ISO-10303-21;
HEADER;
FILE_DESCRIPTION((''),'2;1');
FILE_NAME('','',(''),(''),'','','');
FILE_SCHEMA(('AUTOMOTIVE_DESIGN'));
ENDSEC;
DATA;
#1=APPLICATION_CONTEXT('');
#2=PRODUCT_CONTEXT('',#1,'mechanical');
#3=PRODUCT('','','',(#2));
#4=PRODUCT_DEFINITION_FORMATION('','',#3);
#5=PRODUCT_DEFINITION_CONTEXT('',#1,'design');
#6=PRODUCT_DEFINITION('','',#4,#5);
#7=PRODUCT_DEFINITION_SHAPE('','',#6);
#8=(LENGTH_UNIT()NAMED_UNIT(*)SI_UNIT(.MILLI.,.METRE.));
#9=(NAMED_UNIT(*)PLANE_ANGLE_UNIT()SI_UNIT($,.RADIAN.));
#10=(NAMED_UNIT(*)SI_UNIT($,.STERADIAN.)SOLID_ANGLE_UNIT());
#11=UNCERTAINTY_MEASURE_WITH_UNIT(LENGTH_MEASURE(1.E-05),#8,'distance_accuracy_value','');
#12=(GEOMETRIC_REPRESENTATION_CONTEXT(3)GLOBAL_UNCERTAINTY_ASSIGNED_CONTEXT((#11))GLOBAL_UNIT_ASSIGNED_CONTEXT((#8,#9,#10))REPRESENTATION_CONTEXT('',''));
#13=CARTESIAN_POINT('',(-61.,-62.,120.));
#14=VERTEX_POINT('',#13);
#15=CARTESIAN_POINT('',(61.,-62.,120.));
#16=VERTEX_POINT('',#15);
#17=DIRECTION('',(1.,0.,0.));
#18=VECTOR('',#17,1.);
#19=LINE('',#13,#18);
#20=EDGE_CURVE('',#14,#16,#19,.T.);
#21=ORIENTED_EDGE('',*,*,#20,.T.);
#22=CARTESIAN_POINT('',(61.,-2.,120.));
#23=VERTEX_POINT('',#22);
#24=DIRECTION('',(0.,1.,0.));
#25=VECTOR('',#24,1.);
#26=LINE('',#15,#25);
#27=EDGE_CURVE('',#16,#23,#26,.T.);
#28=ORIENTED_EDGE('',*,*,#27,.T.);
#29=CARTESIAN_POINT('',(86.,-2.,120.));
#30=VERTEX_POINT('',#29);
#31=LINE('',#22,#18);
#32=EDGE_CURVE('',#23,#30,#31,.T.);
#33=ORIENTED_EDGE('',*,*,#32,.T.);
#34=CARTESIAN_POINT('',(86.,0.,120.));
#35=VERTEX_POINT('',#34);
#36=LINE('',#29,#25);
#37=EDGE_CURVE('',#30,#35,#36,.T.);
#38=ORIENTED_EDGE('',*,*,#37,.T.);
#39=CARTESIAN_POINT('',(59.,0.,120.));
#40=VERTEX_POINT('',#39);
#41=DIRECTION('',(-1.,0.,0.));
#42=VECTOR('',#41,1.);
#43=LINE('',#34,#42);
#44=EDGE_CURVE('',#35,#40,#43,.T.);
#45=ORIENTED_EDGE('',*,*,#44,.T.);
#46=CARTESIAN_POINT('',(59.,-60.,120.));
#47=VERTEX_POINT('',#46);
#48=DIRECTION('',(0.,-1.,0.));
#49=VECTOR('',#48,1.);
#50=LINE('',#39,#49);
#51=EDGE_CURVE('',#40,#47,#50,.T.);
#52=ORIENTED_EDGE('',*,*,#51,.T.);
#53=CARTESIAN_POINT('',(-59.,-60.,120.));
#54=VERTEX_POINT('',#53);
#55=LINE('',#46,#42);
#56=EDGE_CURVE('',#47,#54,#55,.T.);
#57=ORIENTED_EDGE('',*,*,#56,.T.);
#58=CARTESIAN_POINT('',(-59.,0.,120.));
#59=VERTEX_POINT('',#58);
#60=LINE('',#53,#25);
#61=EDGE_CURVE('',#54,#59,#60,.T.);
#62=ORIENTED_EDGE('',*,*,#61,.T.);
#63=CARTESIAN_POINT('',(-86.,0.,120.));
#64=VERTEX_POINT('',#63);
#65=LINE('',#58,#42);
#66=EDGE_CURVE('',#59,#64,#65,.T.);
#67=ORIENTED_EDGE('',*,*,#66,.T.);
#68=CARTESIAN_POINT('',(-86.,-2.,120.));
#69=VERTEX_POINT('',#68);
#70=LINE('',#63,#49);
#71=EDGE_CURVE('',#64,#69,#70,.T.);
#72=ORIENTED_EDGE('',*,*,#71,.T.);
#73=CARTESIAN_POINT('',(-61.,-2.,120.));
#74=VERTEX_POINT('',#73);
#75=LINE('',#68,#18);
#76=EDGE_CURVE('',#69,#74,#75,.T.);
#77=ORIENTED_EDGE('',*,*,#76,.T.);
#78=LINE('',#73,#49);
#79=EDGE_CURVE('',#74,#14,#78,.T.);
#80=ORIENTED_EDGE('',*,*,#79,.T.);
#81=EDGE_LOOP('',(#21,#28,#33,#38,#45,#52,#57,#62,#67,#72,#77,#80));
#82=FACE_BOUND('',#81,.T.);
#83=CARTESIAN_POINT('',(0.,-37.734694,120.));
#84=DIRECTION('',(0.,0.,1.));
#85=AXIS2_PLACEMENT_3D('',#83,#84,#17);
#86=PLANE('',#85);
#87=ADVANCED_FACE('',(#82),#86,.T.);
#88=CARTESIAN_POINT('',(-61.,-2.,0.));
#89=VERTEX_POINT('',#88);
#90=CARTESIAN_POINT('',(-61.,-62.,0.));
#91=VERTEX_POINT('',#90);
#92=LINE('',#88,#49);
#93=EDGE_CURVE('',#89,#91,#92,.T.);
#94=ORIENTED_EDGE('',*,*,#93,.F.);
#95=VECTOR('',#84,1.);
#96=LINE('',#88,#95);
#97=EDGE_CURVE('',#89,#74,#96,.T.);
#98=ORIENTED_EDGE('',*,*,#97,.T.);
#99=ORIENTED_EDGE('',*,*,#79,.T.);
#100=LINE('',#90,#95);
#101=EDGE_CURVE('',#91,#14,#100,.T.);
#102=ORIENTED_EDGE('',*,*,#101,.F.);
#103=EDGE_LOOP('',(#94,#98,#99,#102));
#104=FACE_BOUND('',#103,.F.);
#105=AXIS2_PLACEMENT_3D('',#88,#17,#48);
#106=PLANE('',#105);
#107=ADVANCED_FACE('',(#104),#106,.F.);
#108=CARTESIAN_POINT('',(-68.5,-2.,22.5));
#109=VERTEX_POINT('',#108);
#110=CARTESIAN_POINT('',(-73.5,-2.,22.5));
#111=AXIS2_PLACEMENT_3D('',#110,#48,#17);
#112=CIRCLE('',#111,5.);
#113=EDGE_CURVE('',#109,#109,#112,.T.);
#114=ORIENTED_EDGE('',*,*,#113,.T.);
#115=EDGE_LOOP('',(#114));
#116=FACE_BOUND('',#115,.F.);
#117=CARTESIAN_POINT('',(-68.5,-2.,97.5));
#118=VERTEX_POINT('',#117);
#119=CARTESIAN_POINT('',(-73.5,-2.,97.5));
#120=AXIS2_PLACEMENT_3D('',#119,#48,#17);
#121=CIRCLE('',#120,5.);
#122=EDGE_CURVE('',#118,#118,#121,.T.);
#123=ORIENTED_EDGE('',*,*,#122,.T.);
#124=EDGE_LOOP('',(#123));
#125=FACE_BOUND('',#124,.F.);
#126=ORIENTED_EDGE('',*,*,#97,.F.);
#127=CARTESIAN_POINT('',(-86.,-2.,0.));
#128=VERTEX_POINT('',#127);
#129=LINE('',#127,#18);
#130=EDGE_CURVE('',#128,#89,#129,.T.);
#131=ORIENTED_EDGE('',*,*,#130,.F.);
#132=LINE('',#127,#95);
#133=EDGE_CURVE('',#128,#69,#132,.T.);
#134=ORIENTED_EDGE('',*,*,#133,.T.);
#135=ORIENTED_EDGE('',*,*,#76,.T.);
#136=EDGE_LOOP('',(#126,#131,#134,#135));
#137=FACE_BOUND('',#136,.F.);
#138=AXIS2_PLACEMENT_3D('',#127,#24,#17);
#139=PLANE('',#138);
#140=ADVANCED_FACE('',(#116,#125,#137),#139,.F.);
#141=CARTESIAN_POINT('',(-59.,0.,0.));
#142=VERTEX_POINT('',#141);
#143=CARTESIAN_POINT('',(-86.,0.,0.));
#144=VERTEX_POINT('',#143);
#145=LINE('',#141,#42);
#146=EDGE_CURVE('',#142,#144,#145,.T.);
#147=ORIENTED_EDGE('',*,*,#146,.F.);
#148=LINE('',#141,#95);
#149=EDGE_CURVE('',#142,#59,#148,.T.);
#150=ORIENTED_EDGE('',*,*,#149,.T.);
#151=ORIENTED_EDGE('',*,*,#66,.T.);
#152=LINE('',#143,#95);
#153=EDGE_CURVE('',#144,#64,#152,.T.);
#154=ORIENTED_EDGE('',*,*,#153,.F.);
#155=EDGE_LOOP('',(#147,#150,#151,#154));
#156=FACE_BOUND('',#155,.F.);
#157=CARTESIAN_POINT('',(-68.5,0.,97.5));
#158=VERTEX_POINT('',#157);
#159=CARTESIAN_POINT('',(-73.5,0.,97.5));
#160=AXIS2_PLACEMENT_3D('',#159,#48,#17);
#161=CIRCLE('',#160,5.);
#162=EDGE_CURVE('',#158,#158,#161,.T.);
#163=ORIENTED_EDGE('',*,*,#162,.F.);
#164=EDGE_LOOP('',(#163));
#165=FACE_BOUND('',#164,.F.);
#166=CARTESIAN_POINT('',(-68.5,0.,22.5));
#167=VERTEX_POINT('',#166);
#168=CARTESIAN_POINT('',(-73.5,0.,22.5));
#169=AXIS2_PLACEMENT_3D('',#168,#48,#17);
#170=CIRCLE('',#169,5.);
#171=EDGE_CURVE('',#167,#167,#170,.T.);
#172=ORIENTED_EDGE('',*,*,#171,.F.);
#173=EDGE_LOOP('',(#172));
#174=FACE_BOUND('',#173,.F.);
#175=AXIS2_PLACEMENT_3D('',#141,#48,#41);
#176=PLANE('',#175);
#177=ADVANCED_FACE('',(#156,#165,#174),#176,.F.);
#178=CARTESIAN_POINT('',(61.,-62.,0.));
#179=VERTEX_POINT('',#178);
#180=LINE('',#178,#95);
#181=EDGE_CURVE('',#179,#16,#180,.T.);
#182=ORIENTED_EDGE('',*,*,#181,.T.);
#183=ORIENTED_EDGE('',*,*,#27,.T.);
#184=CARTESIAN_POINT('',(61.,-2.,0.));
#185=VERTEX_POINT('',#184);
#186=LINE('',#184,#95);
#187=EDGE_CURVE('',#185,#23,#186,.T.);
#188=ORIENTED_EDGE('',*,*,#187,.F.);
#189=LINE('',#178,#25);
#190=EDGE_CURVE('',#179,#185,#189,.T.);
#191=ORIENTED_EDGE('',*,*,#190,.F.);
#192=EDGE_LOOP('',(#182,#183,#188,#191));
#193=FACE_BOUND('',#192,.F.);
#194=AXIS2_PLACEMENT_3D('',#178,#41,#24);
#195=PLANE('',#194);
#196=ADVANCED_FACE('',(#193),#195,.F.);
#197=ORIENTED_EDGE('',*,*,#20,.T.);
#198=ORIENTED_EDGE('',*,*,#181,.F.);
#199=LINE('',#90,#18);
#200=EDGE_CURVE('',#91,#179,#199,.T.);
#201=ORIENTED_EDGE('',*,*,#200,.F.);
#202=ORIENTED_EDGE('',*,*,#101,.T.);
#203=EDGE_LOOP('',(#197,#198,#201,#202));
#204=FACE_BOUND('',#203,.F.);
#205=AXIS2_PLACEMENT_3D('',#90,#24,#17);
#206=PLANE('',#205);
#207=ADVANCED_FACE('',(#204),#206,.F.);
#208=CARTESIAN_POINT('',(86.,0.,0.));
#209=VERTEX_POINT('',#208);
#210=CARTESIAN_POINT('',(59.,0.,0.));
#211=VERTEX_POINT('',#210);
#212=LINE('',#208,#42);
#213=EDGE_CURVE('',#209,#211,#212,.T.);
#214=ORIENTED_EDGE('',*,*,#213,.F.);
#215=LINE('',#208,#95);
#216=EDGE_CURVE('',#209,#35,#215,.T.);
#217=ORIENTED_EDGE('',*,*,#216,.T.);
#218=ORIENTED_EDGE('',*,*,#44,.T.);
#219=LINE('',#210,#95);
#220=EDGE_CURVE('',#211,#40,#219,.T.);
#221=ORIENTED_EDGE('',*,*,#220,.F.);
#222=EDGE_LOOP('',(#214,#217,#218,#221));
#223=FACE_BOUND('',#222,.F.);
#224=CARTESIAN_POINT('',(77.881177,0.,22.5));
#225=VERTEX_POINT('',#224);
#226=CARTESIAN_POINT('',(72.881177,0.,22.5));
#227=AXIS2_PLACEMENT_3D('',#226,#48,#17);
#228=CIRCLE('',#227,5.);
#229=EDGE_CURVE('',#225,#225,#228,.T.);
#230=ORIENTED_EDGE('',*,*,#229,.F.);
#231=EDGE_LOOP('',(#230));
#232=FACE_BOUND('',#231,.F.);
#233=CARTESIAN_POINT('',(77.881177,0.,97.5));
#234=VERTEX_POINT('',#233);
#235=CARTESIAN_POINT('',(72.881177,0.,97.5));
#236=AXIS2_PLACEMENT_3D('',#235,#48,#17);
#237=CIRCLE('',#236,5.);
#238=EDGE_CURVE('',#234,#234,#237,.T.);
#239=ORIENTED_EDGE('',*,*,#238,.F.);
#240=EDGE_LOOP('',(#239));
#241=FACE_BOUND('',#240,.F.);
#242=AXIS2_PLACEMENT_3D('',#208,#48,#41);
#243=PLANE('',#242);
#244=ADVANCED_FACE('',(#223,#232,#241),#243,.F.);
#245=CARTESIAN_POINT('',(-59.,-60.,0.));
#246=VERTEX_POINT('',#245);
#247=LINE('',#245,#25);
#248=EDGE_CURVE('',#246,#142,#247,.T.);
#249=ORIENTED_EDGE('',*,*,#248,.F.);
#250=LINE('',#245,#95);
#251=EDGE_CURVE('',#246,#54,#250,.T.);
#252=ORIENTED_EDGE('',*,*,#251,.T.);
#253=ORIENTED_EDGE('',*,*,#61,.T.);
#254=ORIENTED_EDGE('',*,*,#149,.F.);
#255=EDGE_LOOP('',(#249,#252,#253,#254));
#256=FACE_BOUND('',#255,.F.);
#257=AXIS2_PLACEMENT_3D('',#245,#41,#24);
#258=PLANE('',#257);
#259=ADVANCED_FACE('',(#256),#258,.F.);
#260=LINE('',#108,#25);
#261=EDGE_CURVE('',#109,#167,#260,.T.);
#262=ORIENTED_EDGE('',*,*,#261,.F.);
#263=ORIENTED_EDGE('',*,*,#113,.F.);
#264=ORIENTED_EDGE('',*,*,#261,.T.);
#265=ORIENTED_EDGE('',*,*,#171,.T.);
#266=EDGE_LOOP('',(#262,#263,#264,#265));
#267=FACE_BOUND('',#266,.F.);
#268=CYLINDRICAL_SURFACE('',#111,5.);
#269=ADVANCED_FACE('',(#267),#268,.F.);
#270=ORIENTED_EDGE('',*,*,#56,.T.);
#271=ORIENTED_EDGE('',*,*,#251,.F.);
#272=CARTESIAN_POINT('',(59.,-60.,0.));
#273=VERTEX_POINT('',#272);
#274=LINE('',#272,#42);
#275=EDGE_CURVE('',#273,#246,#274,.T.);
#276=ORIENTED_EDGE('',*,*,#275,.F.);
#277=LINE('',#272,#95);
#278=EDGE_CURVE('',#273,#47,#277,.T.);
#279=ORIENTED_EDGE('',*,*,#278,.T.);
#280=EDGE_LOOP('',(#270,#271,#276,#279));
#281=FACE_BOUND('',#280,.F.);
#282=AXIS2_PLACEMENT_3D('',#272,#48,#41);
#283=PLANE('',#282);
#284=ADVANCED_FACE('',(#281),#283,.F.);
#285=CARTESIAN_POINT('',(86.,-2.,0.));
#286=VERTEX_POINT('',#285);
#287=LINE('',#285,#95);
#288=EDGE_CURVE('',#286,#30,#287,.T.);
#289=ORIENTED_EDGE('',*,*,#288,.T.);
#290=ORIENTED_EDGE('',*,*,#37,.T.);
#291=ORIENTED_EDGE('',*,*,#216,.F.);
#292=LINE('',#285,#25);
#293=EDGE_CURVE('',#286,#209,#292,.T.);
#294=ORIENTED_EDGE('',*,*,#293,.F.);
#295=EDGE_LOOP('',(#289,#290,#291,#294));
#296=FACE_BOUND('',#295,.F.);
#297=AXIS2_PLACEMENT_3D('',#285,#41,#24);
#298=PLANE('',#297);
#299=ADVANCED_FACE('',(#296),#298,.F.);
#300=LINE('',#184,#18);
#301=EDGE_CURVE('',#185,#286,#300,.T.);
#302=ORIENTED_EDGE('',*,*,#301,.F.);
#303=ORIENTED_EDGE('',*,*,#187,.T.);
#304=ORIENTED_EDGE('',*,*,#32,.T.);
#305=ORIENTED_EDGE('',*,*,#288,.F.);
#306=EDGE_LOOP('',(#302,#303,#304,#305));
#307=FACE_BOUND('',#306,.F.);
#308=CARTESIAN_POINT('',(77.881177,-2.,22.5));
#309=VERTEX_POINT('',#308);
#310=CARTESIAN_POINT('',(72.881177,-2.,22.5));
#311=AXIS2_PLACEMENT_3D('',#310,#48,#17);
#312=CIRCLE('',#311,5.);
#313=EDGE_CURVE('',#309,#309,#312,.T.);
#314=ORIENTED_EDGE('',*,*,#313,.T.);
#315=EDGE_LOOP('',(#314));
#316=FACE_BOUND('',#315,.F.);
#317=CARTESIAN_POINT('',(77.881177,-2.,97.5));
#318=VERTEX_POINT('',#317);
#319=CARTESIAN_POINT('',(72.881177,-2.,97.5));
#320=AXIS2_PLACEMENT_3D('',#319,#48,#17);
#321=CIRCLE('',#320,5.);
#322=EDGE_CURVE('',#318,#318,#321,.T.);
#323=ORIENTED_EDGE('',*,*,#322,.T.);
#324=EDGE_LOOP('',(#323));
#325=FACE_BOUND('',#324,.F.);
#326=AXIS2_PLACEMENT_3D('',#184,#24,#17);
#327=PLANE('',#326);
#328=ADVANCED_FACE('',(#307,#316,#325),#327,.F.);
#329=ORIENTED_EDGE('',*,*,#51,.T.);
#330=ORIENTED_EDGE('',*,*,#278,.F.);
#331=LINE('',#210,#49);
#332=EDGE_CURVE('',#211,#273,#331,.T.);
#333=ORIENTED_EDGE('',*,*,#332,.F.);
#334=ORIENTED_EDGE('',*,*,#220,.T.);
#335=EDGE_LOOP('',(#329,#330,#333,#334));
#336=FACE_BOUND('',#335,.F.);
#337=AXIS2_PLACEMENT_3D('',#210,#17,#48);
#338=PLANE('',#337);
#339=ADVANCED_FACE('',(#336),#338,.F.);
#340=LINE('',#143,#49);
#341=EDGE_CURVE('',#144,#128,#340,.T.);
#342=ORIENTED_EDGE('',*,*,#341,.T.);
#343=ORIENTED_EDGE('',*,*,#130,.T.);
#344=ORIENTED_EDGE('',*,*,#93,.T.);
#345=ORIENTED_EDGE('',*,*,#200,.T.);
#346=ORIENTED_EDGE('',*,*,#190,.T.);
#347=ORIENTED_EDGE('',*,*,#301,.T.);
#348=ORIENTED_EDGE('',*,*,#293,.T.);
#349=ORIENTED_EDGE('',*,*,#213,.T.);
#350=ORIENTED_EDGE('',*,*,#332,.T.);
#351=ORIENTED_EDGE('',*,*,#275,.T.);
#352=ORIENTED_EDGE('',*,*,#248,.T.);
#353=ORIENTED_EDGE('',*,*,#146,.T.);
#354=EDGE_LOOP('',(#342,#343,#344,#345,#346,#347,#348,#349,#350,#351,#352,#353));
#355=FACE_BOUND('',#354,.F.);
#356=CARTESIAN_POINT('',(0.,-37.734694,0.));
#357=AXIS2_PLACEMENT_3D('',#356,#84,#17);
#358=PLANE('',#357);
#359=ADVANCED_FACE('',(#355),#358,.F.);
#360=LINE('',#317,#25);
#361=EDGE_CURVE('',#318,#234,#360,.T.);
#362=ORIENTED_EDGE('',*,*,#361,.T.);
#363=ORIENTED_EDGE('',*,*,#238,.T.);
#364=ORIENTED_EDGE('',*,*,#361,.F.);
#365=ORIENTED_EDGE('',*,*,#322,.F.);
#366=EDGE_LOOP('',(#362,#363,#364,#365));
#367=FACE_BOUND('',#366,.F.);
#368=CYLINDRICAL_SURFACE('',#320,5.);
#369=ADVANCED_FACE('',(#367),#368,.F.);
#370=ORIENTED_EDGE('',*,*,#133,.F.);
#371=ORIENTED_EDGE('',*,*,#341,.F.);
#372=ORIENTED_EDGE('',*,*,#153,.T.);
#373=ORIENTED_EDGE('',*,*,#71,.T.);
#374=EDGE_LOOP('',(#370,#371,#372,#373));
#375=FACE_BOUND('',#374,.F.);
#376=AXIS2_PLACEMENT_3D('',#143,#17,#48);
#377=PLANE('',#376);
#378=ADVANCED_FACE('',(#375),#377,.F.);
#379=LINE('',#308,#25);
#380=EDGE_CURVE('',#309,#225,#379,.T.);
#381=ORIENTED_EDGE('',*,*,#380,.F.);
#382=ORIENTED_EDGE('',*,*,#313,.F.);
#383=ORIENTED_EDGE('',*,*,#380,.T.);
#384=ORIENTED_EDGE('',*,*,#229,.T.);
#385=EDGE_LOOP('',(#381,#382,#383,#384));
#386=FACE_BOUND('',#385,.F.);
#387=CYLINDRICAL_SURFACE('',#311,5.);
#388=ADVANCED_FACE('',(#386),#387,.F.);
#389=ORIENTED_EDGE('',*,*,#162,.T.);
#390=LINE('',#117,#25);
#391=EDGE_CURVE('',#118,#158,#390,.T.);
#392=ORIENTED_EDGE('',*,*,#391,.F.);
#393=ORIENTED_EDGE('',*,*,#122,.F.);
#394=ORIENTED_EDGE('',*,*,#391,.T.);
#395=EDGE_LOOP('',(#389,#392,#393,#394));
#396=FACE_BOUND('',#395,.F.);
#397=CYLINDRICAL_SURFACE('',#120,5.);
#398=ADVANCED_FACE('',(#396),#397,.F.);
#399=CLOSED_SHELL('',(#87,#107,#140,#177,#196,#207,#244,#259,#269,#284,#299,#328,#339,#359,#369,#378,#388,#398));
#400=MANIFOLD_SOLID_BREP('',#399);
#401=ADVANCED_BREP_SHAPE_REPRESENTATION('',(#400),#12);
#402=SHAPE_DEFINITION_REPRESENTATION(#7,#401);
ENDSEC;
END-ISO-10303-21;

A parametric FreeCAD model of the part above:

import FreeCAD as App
import Part
import Sketcher
from FreeCAD import Vector


def add_polygon(sketch, points):
    """Adds a closed chain of lines whose ends are joined by coincident constraints."""
    first, n = sketch.GeometryCount, len(points)
    for a, b in zip(points, points[1:] + points[:1]):
        sketch.addGeometry(Part.LineSegment(App.Vector(*a, 0), App.Vector(*b, 0)), False)
    for i in range(n):
        sketch.addConstraint(Sketcher.Constraint("Coincident", first + i, 2, first + (i + 1) % n, 1))

doc = App.newDocument("Part")
params = doc.addObject("Spreadsheet::Sheet", "Params")
for row, (alias, value) in enumerate([
    ("sketch1_width", "27 mm"),
    ("sketch1_width2", "25 mm"),
    ("sketch1_width3", "122 mm"),
    ("sketch1_height", "2 mm"),
    ("sketch1_height2", "60 mm"),
    ("pad1_length", "120 mm"),
    ("sketch2_diameter", "10 mm"),
    ("pocket1_length", "25 mm"),
    ("sketch3_diameter", "10 mm"),
    ("pocket2_length", "25 mm"),
], start=1):
    params.set(f"A{row}", alias)
    params.set(f"B{row}", "=" + value)
    params.setAlias(f"B{row}", alias)

body = doc.addObject("PartDesign::Body", "Body")

# Sketch on XY plane
sketch1 = body.newObject("Sketcher::SketchObject", "Sketch")
sketch1.AttachmentSupport = (doc.getObject("XY_Plane"), [""])
sketch1.MapMode = "FlatFace"
add_polygon(sketch1, [(-59, 0), (-86, 0), (-86, -2), (-61, -2), (-61, -62), (61, -62), (61, -2), (86, -2), (86, 0), (59, 0), (59, -60), (-59, -60)])  # lines 0-11
sketch1.addConstraint([
    Sketcher.Constraint("Horizontal", 0),
    Sketcher.Constraint("Vertical", 1),
    Sketcher.Constraint("Horizontal", 2),
    Sketcher.Constraint("Vertical", 3),
    Sketcher.Constraint("Horizontal", 4),
    Sketcher.Constraint("Vertical", 5),
    Sketcher.Constraint("Horizontal", 6),
    Sketcher.Constraint("Vertical", 7),
    Sketcher.Constraint("Horizontal", 8),
    Sketcher.Constraint("Vertical", 9),
    Sketcher.Constraint("Horizontal", 10),
    Sketcher.Constraint("Vertical", 11),
    Sketcher.Constraint("Symmetric", 0, 2, 7, 2, -1, 1),
    Sketcher.Constraint("Symmetric", 2, 2, 5, 2, -2),
    Sketcher.Constraint("Symmetric", 8, 2, 11, 2, -2),
    Sketcher.Constraint("Equal", 5, 9),
    Sketcher.Constraint("DistanceX", 0, 2, 0, 1, 27.0),
    Sketcher.Constraint("DistanceX", 2, 1, 2, 2, 25.0),
    Sketcher.Constraint("DistanceX", 4, 1, 4, 2, 122.0),
    Sketcher.Constraint("DistanceY", 1, 2, 1, 1, 2.0),
    Sketcher.Constraint("DistanceY", 3, 2, 3, 1, 60.0),
])
sketch1.setExpression("Constraints[28]", "Params.sketch1_width")
sketch1.setExpression("Constraints[29]", "Params.sketch1_width2")
sketch1.setExpression("Constraints[30]", "Params.sketch1_width3")
sketch1.setExpression("Constraints[31]", "Params.sketch1_height")
sketch1.setExpression("Constraints[32]", "Params.sketch1_height2")
pad1 = body.newObject("PartDesign::Pad", "Pad")
pad1.Profile = sketch1
pad1.setExpression("Length", "Params.pad1_length")

# Sketch on XZ plane
sketch2 = body.newObject("Sketcher::SketchObject", "Sketch001")
sketch2.AttachmentSupport = (doc.getObject("XZ_Plane"), [""])
sketch2.MapMode = "FlatFace"
sketch2.AttachmentOffset = App.Placement(Vector(0, 0, 2), App.Rotation())
sketch2.addGeometry([
    Part.Circle(Vector(-73.5, 97.5, 0), Vector(0, 0, 1), 5),
    Part.Circle(Vector(-73.5, 22.5, 0), Vector(0, 0, 1), 5),
], False)
sketch2.addConstraint([
    Sketcher.Constraint("Equal", 0, 1),
    Sketcher.Constraint("Vertical", 0, 3, 1, 3),
    Sketcher.Constraint("Diameter", 0, 10.0),
    Sketcher.Constraint("DistanceY", 1, 3, 0, 3, 75.0),
    Sketcher.Constraint("DistanceX", 0, 3, -1, 1, 73.5),
    Sketcher.Constraint("DistanceY", -1, 1, 0, 3, 97.5),
])
sketch2.setExpression("Constraints[2]", "Params.sketch2_diameter")
pocket1 = body.newObject("PartDesign::Pocket", "Pocket")
pocket1.Profile = sketch2
pocket1.setExpression("Length", "Params.pocket1_length")

# Sketch on XZ plane
sketch3 = body.newObject("Sketcher::SketchObject", "Sketch002")
sketch3.AttachmentSupport = (doc.getObject("XZ_Plane"), [""])
sketch3.MapMode = "FlatFace"
sketch3.AttachmentOffset = App.Placement(Vector(0, 0, 2), App.Rotation())
sketch3.addGeometry([
    Part.Circle(Vector(72.881177, 97.5, 0), Vector(0, 0, 1), 5),
    Part.Circle(Vector(72.881177, 22.5, 0), Vector(0, 0, 1), 5),
], False)
sketch3.addConstraint([
    Sketcher.Constraint("Equal", 0, 1),
    Sketcher.Constraint("Vertical", 0, 3, 1, 3),
    Sketcher.Constraint("Diameter", 0, 10.0),
    Sketcher.Constraint("DistanceY", 1, 3, 0, 3, 75.0),
    Sketcher.Constraint("DistanceY", -1, 1, 0, 3, 97.5),
    Sketcher.Constraint("DistanceX", -1, 1, 0, 3, 72.881177),
])
sketch3.setExpression("Constraints[2]", "Params.sketch3_diameter")
pocket2 = body.newObject("PartDesign::Pocket", "Pocket001")
pocket2.Profile = sketch3
pocket2.setExpression("Length", "Params.pocket2_length")

doc.recompute()
